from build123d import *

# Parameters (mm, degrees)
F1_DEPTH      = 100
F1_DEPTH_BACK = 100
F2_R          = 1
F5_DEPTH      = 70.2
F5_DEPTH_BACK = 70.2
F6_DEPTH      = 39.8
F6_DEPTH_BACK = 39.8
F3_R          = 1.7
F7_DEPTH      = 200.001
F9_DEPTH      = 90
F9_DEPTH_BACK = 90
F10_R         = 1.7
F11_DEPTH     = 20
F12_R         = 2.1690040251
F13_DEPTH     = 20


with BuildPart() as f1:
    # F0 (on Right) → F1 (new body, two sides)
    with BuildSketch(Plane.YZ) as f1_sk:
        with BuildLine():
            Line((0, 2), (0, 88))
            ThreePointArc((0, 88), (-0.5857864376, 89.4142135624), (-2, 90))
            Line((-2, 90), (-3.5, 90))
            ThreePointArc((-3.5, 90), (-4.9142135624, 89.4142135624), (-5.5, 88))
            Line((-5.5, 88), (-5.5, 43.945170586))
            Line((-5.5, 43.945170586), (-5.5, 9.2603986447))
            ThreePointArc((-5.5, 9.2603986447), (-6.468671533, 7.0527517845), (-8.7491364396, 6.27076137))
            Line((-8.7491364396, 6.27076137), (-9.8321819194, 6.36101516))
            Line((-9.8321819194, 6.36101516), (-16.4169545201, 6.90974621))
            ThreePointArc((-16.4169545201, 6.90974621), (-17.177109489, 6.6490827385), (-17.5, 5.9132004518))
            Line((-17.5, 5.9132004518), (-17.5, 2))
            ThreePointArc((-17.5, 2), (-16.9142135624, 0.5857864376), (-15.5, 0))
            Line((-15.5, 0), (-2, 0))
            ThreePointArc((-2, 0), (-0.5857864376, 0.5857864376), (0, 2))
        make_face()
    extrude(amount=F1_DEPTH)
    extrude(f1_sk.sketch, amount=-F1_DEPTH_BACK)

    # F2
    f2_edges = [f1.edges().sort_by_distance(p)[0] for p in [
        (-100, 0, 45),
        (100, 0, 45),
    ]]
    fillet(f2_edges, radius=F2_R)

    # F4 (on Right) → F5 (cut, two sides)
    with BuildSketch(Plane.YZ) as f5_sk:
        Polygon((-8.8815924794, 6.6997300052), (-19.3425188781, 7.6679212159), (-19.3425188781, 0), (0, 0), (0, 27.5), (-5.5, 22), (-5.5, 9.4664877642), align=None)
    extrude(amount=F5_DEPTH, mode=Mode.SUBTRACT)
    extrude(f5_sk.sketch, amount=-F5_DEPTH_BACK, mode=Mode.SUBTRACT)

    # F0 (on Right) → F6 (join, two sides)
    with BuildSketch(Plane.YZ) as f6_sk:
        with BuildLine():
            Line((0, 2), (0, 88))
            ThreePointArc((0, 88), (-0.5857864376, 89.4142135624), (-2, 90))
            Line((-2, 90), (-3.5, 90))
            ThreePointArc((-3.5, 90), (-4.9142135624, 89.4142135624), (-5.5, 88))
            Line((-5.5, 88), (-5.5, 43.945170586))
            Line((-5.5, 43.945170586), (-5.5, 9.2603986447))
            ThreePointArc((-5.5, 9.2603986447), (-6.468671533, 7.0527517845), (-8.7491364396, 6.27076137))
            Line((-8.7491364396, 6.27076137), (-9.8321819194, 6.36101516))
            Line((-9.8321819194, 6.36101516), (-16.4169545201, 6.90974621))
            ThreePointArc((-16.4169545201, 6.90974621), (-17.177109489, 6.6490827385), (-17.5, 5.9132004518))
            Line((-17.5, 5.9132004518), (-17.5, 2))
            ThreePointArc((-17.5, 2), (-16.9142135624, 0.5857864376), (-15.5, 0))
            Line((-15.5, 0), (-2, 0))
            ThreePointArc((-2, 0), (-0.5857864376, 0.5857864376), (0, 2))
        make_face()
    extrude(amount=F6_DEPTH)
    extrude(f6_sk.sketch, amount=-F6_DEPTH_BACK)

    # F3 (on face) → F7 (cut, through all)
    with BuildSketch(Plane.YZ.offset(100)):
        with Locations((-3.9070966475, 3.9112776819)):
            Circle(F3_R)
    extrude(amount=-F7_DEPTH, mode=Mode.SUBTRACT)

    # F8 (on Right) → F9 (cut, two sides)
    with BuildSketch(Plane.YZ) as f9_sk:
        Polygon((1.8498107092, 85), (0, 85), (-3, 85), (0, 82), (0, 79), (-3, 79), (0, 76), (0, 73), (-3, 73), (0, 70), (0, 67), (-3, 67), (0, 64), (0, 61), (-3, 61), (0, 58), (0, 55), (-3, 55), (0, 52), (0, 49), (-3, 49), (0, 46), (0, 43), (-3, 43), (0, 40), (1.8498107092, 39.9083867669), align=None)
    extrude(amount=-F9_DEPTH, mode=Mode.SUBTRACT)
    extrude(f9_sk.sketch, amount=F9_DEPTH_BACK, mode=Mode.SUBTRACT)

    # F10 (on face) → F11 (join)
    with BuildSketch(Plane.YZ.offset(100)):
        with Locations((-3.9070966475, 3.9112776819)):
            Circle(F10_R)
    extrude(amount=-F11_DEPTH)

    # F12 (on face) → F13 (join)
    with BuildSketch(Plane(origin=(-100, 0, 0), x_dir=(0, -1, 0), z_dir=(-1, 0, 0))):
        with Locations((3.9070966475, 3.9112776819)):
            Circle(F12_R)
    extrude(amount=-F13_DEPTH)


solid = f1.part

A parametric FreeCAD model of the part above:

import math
import FreeCAD as App
import Part
import Sketcher

V = App.Vector
Q = App.Units.Quantity


def edges_at(feature, points):
    """Names of the edges that pass closest to the given points."""
    edges = feature.Shape.Edges
    near = lambda p: min(range(len(edges)), key=lambda i: edges[i].distToShape(Part.Vertex(*p))[0])
    return sorted({f"Edge{near(p) + 1}" for p in points})

doc = App.newDocument("Part")
body = doc.addObject("PartDesign::Body", "Body")

# Sketch on YZ plane
sketch1 = doc.addObject("Sketcher::SketchObject", "Sketch")
body.addObject(sketch1)
sketch1.AttachmentSupport = (doc.YZ_Plane, [""])
sketch1.MapMode = "FlatFace"
sketch1.addGeometry([
    Part.LineSegment(V(0, 2, 0), V(0, 88, 0)),  # 0
    Part.ArcOfCircle(Part.Circle(V(-2, 88, 0), V(0, 0, 1), 2), math.radians(0), math.radians(90)),  # 1
    Part.LineSegment(V(-2, 90, 0), V(-3.5, 90, 0)),  # 2
    Part.ArcOfCircle(Part.Circle(V(-3.5, 88, 0), V(0, 0, 1), 2), math.radians(90), math.radians(180)),  # 3
    Part.LineSegment(V(-5.5, 88, 0), V(-5.5, 9.3, 0)),  # 4
    Part.ArcOfCircle(Part.Circle(V(-8.5, 9.3, 0), V(0, 0, 1), 3), math.radians(-95), math.radians(0)),  # 5
    Part.LineSegment(V(-8.7, 6.3, 0), V(-9.8, 6.4, 0)),  # 6
    Part.LineSegment(V(-9.8, 6.4, 0), V(-16.4, 6.9, 0)),  # 7
    Part.ArcOfCircle(Part.Circle(V(-16.5, 5.9, 0), V(0, 0, 1), 1), math.radians(85), math.radians(180)),  # 8
    Part.LineSegment(V(-17.5, 5.9, 0), V(-17.5, 2, 0)),  # 9
    Part.ArcOfCircle(Part.Circle(V(-15.5, 2, 0), V(0, 0, 1), 2), math.radians(180), math.radians(270)),  # 10
    Part.LineSegment(V(-15.5, 0, 0), V(-2, 0, 0)),  # 11
    Part.ArcOfCircle(Part.Circle(V(-2, 2, 0), V(0, 0, 1), 2), math.radians(-90), math.radians(0)),  # 12
], False)
sketch1.addConstraint([
    Sketcher.Constraint("Tangent", 0, 2, 1, 1),
    Sketcher.Constraint("Tangent", 1, 2, 2, 1),
    Sketcher.Constraint("Tangent", 2, 2, 3, 1),
    Sketcher.Constraint("Tangent", 3, 2, 4, 1),
    Sketcher.Constraint("Tangent", 4, 2, 5, 2),
    Sketcher.Constraint("Tangent", 5, 1, 6, 1),
    Sketcher.Constraint("Coincident", 6, 2, 7, 1),
    Sketcher.Constraint("Tangent", 7, 2, 8, 1),
    Sketcher.Constraint("Tangent", 8, 2, 9, 1),
    Sketcher.Constraint("Tangent", 9, 2, 10, 1),
    Sketcher.Constraint("Tangent", 10, 2, 11, 1),
    Sketcher.Constraint("Tangent", 11, 2, 12, 1),
    Sketcher.Constraint("Tangent", 12, 2, 0, 1),
    Sketcher.Constraint("Vertical", 0),
    Sketcher.Constraint("Horizontal", 2),
    Sketcher.Constraint("Vertical", 4),
    Sketcher.Constraint("Vertical", 9),
    Sketcher.Constraint("Horizontal", 11),
    Sketcher.Constraint("Equal", 1, 3),
    Sketcher.Constraint("Equal", 3, 10),
    Sketcher.Constraint("Equal", 10, 12),
    Sketcher.Constraint("PointOnObject", 0, 2, -2),
    Sketcher.Constraint("PointOnObject", 10, 2, -1),
    Sketcher.Constraint("Parallel", 6, 7),
    Sketcher.Constraint("Radius", 1, 2.0),
    Sketcher.Constraint("Radius", 5, 3.0),
    Sketcher.Constraint("Radius", 8, 1.0),
    Sketcher.Constraint("DistanceY", 0, 1, 0, 2, 86.0),
    Sketcher.Constraint("DistanceX", 2, 2, 2, 1, 1.5),
    Sketcher.Constraint("DistanceX", 11, 1, 11, 2, 13.5),
    Sketcher.Constraint("DistanceY", 4, 2, 4, 1, 78.739601),
    Sketcher.Constraint("DistanceY", 9, 2, 9, 1, 3.9132),
    Sketcher.Constraint("Distance", 6, 1.0868),
])
pad1 = doc.addObject("PartDesign::Pad", "Pad")
body.addObject(pad1)
pad1.Profile = sketch1
pad1.Type = "TwoLengths"
pad1.Length = 100
pad1.Length2 = 100
doc.recompute()

fillet = doc.addObject("PartDesign::Fillet", "Fillet")
body.addObject(fillet)
fillet.Base = (pad1, edges_at(pad1, [(-100, 0, 45), (100, 0, 45)]))
fillet.Radius = 1

# Sketch on YZ plane
sketch2 = doc.addObject("Sketcher::SketchObject", "Sketch001")
body.addObject(sketch2)
sketch2.AttachmentSupport = (doc.YZ_Plane, [""])
sketch2.MapMode = "FlatFace"
sketch2.addGeometry([
    Part.LineSegment(V(-8.9, 6.7, 0), V(-19.3, 7.7, 0)),  # 0
    Part.LineSegment(V(-19.3, 7.7, 0), V(-19.3, 0, 0)),  # 1
    Part.LineSegment(V(-19.3, 0, 0), V(0, 0, 0)),  # 2
    Part.LineSegment(V(0, 0, 0), V(0, 27.5, 0)),  # 3
    Part.LineSegment(V(0, 27.5, 0), V(-5.5, 22, 0)),  # 4
    Part.LineSegment(V(-5.5, 22, 0), V(-5.5, 9.5, 0)),  # 5
    Part.LineSegment(V(-5.5, 9.5, 0), V(-8.9, 6.7, 0)),  # 6
], False)
sketch2.addConstraint([
    Sketcher.Constraint("Coincident", 0, 2, 1, 1),
    Sketcher.Constraint("Coincident", 1, 2, 2, 1),
    Sketcher.Constraint("Coincident", 2, 2, 3, 1),
    Sketcher.Constraint("Coincident", 3, 2, 4, 1),
    Sketcher.Constraint("Coincident", 4, 2, 5, 1),
    Sketcher.Constraint("Coincident", 5, 2, 6, 1),
    Sketcher.Constraint("Coincident", 6, 2, 0, 1),
    Sketcher.Constraint("Vertical", 1),
    Sketcher.Constraint("Horizontal", 2),
    Sketcher.Constraint("Vertical", 3),
    Sketcher.Constraint("Vertical", 5),
    Sketcher.Constraint("Coincident", 2, 2, -1, 1),
    Sketcher.Constraint("Angle", 4, Q("-135 deg")),
    Sketcher.Constraint("DistanceY", 3, 1, 3, 2, 27.5),
    Sketcher.Constraint("DistanceY", -1, 1, 4, 2, 22.0),
    Sketcher.Constraint("DistanceX", 2, 1, 2, 2, 19.342519),
    Sketcher.Constraint("DistanceY", 1, 2, 1, 1, 7.667921),
    Sketcher.Constraint("DistanceY", 5, 2, 5, 1, 12.533512),
    Sketcher.Constraint("DistanceY", -1, 1, 6, 2, 6.69973),
    Sketcher.Constraint("Distance", 0, 10.505635),
])
pocket1 = doc.addObject("PartDesign::Pocket", "Pocket")
body.addObject(pocket1)
pocket1.Profile = sketch2
pocket1.Type = "TwoLengths"
pocket1.Length = 70.2
pocket1.Length2 = 70.2
pocket1.Reversed = True

# Sketch on YZ plane
sketch3 = doc.addObject("Sketcher::SketchObject", "Sketch002")
body.addObject(sketch3)
sketch3.AttachmentSupport = (doc.YZ_Plane, [""])
sketch3.MapMode = "FlatFace"
sketch3.addGeometry([
    Part.LineSegment(V(0, 2, 0), V(0, 88, 0)),  # 0
    Part.ArcOfCircle(Part.Circle(V(-2, 88, 0), V(0, 0, 1), 2), math.radians(0), math.radians(90)),  # 1
    Part.LineSegment(V(-2, 90, 0), V(-3.5, 90, 0)),  # 2
    Part.ArcOfCircle(Part.Circle(V(-3.5, 88, 0), V(0, 0, 1), 2), math.radians(90), math.radians(180)),  # 3
    Part.LineSegment(V(-5.5, 88, 0), V(-5.5, 9.3, 0)),  # 4
    Part.ArcOfCircle(Part.Circle(V(-8.5, 9.3, 0), V(0, 0, 1), 3), math.radians(-95), math.radians(0)),  # 5
    Part.LineSegment(V(-8.7, 6.3, 0), V(-9.8, 6.4, 0)),  # 6
    Part.LineSegment(V(-9.8, 6.4, 0), V(-16.4, 6.9, 0)),  # 7
    Part.ArcOfCircle(Part.Circle(V(-16.5, 5.9, 0), V(0, 0, 1), 1), math.radians(85), math.radians(180)),  # 8
    Part.LineSegment(V(-17.5, 5.9, 0), V(-17.5, 2, 0)),  # 9
    Part.ArcOfCircle(Part.Circle(V(-15.5, 2, 0), V(0, 0, 1), 2), math.radians(180), math.radians(270)),  # 10
    Part.LineSegment(V(-15.5, 0, 0), V(-2, 0, 0)),  # 11
    Part.ArcOfCircle(Part.Circle(V(-2, 2, 0), V(0, 0, 1), 2), math.radians(-90), math.radians(0)),  # 12
], False)
sketch3.addConstraint([
    Sketcher.Constraint("Tangent", 0, 2, 1, 1),
    Sketcher.Constraint("Tangent", 1, 2, 2, 1),
    Sketcher.Constraint("Tangent", 2, 2, 3, 1),
    Sketcher.Constraint("Tangent", 3, 2, 4, 1),
    Sketcher.Constraint("Tangent", 4, 2, 5, 2),
    Sketcher.Constraint("Tangent", 5, 1, 6, 1),
    Sketcher.Constraint("Coincident", 6, 2, 7, 1),
    Sketcher.Constraint("Tangent", 7, 2, 8, 1),
    Sketcher.Constraint("Tangent", 8, 2, 9, 1),
    Sketcher.Constraint("Tangent", 9, 2, 10, 1),
    Sketcher.Constraint("Tangent", 10, 2, 11, 1),
    Sketcher.Constraint("Tangent", 11, 2, 12, 1),
    Sketcher.Constraint("Tangent", 12, 2, 0, 1),
    Sketcher.Constraint("Vertical", 0),
    Sketcher.Constraint("Horizontal", 2),
    Sketcher.Constraint("Vertical", 4),
    Sketcher.Constraint("Vertical", 9),
    Sketcher.Constraint("Horizontal", 11),
    Sketcher.Constraint("Equal", 1, 3),
    Sketcher.Constraint("Equal", 3, 10),
    Sketcher.Constraint("Equal", 10, 12),
    Sketcher.Constraint("PointOnObject", 0, 2, -2),
    Sketcher.Constraint("PointOnObject", 10, 2, -1),
    Sketcher.Constraint("Parallel", 6, 7),
    Sketcher.Constraint("Radius", 1, 2.0),
    Sketcher.Constraint("Radius", 5, 3.0),
    Sketcher.Constraint("Radius", 8, 1.0),
    Sketcher.Constraint("DistanceY", 0, 1, 0, 2, 86.0),
    Sketcher.Constraint("DistanceX", 2, 2, 2, 1, 1.5),
    Sketcher.Constraint("DistanceX", 11, 1, 11, 2, 13.5),
    Sketcher.Constraint("DistanceY", 4, 2, 4, 1, 78.739601),
    Sketcher.Constraint("DistanceY", 9, 2, 9, 1, 3.9132),
    Sketcher.Constraint("Distance", 6, 1.0868),
])
pad2 = doc.addObject("PartDesign::Pad", "Pad001")
body.addObject(pad2)
pad2.Profile = sketch3
pad2.Type = "TwoLengths"
pad2.Length = 39.8
pad2.Length2 = 39.8

# Sketch on YZ plane
sketch4 = doc.addObject("Sketcher::SketchObject", "Sketch003")
body.addObject(sketch4)
sketch4.AttachmentSupport = (doc.YZ_Plane, [""])
sketch4.MapMode = "FlatFace"
sketch4.AttachmentOffset = App.Placement(V(0, 0, 100), App.Rotation())
sketch4.addGeometry(Part.Circle(V(-3.9, 3.9, 0), V(0, 0, 1), 1.7), False)
sketch4.addConstraint([
    Sketcher.Constraint("Diameter", 0, 3.4),
    Sketcher.Constraint("DistanceX", 0, 3, -1, 1, 3.907097),
    Sketcher.Constraint("DistanceY", -1, 1, 0, 3, 3.911278),
])
pocket2 = doc.addObject("PartDesign::Pocket", "Pocket001")
body.addObject(pocket2)
pocket2.Profile = sketch4
pocket2.Type = "ThroughAll"

# Sketch on YZ plane
sketch5 = doc.addObject("Sketcher::SketchObject", "Sketch004")
body.addObject(sketch5)
sketch5.AttachmentSupport = (doc.YZ_Plane, [""])
sketch5.MapMode = "FlatFace"
sketch5.addGeometry([
    Part.LineSegment(V(1.8, 85, 0), V(-3, 85, 0)),  # 0
    Part.LineSegment(V(-3, 85, 0), V(0, 82, 0)),  # 1
    Part.LineSegment(V(0, 82, 0), V(0, 79, 0)),  # 2
    Part.LineSegment(V(0, 79, 0), V(-3, 79, 0)),  # 3
    Part.LineSegment(V(-3, 79, 0), V(0, 76, 0)),  # 4
    Part.LineSegment(V(0, 76, 0), V(0, 73, 0)),  # 5
    Part.LineSegment(V(0, 73, 0), V(-3, 73, 0)),  # 6
    Part.LineSegment(V(-3, 73, 0), V(0, 70, 0)),  # 7
    Part.LineSegment(V(0, 70, 0), V(0, 67, 0)),  # 8
    Part.LineSegment(V(0, 67, 0), V(-3, 67, 0)),  # 9
    Part.LineSegment(V(-3, 67, 0), V(0, 64, 0)),  # 10
    Part.LineSegment(V(0, 64, 0), V(0, 61, 0)),  # 11
    Part.LineSegment(V(0, 61, 0), V(-3, 61, 0)),  # 12
    Part.LineSegment(V(-3, 61, 0), V(0, 58, 0)),  # 13
    Part.LineSegment(V(0, 58, 0), V(0, 55, 0)),  # 14
    Part.LineSegment(V(0, 55, 0), V(-3, 55, 0)),  # 15
    Part.LineSegment(V(-3, 55, 0), V(0, 52, 0)),  # 16
    Part.LineSegment(V(0, 52, 0), V(0, 49, 0)),  # 17
    Part.LineSegment(V(0, 49, 0), V(-3, 49, 0)),  # 18
    Part.LineSegment(V(-3, 49, 0), V(0, 46, 0)),  # 19
    Part.LineSegment(V(0, 46, 0), V(0, 43, 0)),  # 20
    Part.LineSegment(V(0, 43, 0), V(-3, 43, 0)),  # 21
    Part.LineSegment(V(-3, 43, 0), V(0, 40, 0)),  # 22
    Part.LineSegment(V(0, 40, 0), V(1.8, 39.9, 0)),  # 23
    Part.LineSegment(V(1.8, 39.9, 0), V(1.8, 85, 0)),  # 24
], False)
sketch5.addConstraint([
    Sketcher.Constraint("Coincident", 0, 2, 1, 1),
    Sketcher.Constraint("Coincident", 1, 2, 2, 1),
    Sketcher.Constraint("Coincident", 2, 2, 3, 1),
    Sketcher.Constraint("Coincident", 3, 2, 4, 1),
    Sketcher.Constraint("Coincident", 4, 2, 5, 1),
    Sketcher.Constraint("Coincident", 5, 2, 6, 1),
    Sketcher.Constraint("Coincident", 6, 2, 7, 1),
    Sketcher.Constraint("Coincident", 7, 2, 8, 1),
    Sketcher.Constraint("Coincident", 8, 2, 9, 1),
    Sketcher.Constraint("Coincident", 9, 2, 10, 1),
    Sketcher.Constraint("Coincident", 10, 2, 11, 1),
    Sketcher.Constraint("Coincident", 11, 2, 12, 1),
    Sketcher.Constraint("Coincident", 12, 2, 13, 1),
    Sketcher.Constraint("Coincident", 13, 2, 14, 1),
    Sketcher.Constraint("Coincident", 14, 2, 15, 1),
    Sketcher.Constraint("Coincident", 15, 2, 16, 1),
    Sketcher.Constraint("Coincident", 16, 2, 17, 1),
    Sketcher.Constraint("Coincident", 17, 2, 18, 1),
    Sketcher.Constraint("Coincident", 18, 2, 19, 1),
    Sketcher.Constraint("Coincident", 19, 2, 20, 1),
    Sketcher.Constraint("Coincident", 20, 2, 21, 1),
    Sketcher.Constraint("Coincident", 21, 2, 22, 1),
    Sketcher.Constraint("Coincident", 22, 2, 23, 1),
    Sketcher.Constraint("Coincident", 23, 2, 24, 1),
    Sketcher.Constraint("Coincident", 24, 2, 0, 1),
    Sketcher.Constraint("Horizontal", 0),
    Sketcher.Constraint("Vertical", 2),
    Sketcher.Constraint("Horizontal", 3),
    Sketcher.Constraint("Vertical", 5),
    Sketcher.Constraint("Horizontal", 6),
    Sketcher.Constraint("Vertical", 8),
    Sketcher.Constraint("Horizontal", 9),
    Sketcher.Constraint("Vertical", 11),
    Sketcher.Constraint("Horizontal", 12),
    Sketcher.Constraint("Vertical", 14),
    Sketcher.Constraint("Horizontal", 15),
    Sketcher.Constraint("Vertical", 17),
    Sketcher.Constraint("Horizontal", 18),
    Sketcher.Constraint("Vertical", 20),
    Sketcher.Constraint("Horizontal", 21),
    Sketcher.Constraint("Vertical", 24),
    Sketcher.Constraint("PointOnObject", 1, 2, -2),
    Sketcher.Constraint("PointOnObject", 4, 2, -2),
    Sketcher.Constraint("PointOnObject", 7, 2, -2),
    Sketcher.Constraint("PointOnObject", 10, 2, -2),
    Sketcher.Constraint("PointOnObject", 13, 2, -2),
    Sketcher.Constraint("PointOnObject", 16, 2, -2),
    Sketcher.Constraint("PointOnObject", 19, 2, -2),
    Sketcher.Constraint("PointOnObject", 22, 2, -2),
    Sketcher.Constraint("Parallel", 1, 4),
    Sketcher.Constraint("Parallel", 4, 7),
    Sketcher.Constraint("Parallel", 7, 10),
    Sketcher.Constraint("Parallel", 10, 13),
    Sketcher.Constraint("Parallel", 13, 16),
    Sketcher.Constraint("Parallel", 16, 19),
    Sketcher.Constraint("Parallel", 19, 22),
    Sketcher.Constraint("Vertical", 0, 2, 3, 2),
    Sketcher.Constraint("Vertical", 3, 2, 6, 2),
    Sketcher.Constraint("Vertical", 6, 2, 9, 2),
    Sketcher.Constraint("Vertical", 9, 2, 12, 2),
    Sketcher.Constraint("Vertical", 12, 2, 15, 2),
    Sketcher.Constraint("Vertical", 15, 2, 18, 2),
    Sketcher.Constraint("Vertical", 18, 2, 21, 2),
    Sketcher.Constraint("Equal", 21, 2),
    Sketcher.Constraint("Equal", 2, 5),
    Sketcher.Constraint("Equal", 5, 8),
    Sketcher.Constraint("Equal", 8, 11),
    Sketcher.Constraint("Equal", 11, 14),
    Sketcher.Constraint("Equal", 14, 17),
    Sketcher.Constraint("Equal", 17, 20),
    Sketcher.Constraint("DistanceX", 3, 2, 3, 1, 3.0),
    Sketcher.Constraint("Angle", 1, Q("-45 deg")),
    Sketcher.Constraint("DistanceY", -1, 1, 0, 2, 85.0),
    Sketcher.Constraint("DistanceX", 0, 2, 0, 1, 4.849811),
    Sketcher.Constraint("DistanceY", 24, 1, 24, 2, 45.091613),
])
pocket3 = doc.addObject("PartDesign::Pocket", "Pocket002")
body.addObject(pocket3)
pocket3.Profile = sketch5
pocket3.Type = "TwoLengths"
pocket3.Length = 90
pocket3.Length2 = 90

# Sketch on YZ plane
sketch6 = doc.addObject("Sketcher::SketchObject", "Sketch005")
body.addObject(sketch6)
sketch6.AttachmentSupport = (doc.YZ_Plane, [""])
sketch6.MapMode = "FlatFace"
sketch6.AttachmentOffset = App.Placement(V(0, 0, 100), App.Rotation())
sketch6.addGeometry(Part.Circle(V(-3.9, 3.9, 0), V(0, 0, 1), 1.7), False)
sketch6.addConstraint([
    Sketcher.Constraint("Diameter", 0, 3.4),
    Sketcher.Constraint("DistanceX", 0, 3, -1, 1, 3.907097),
    Sketcher.Constraint("DistanceY", -1, 1, 0, 3, 3.911278),
])
pad3 = doc.addObject("PartDesign::Pad", "Pad002")
body.addObject(pad3)
pad3.Profile = sketch6
pad3.Length = 20
pad3.Reversed = True

# Sketch on YZ plane
sketch7 = doc.addObject("Sketcher::SketchObject", "Sketch006")
body.addObject(sketch7)
sketch7.AttachmentSupport = (doc.YZ_Plane, [""])
sketch7.MapMode = "FlatFace"
sketch7.AttachmentOffset = App.Placement(V(0, 0, -100), App.Rotation())
sketch7.addGeometry(Part.Circle(V(-3.9, 3.9, 0), V(0, 0, 1), 2.2), False)
sketch7.addConstraint([
    Sketcher.Constraint("Diameter", 0, 4.338008),
    Sketcher.Constraint("DistanceX", 0, 3, -1, 1, 3.907097),
    Sketcher.Constraint("DistanceY", -1, 1, 0, 3, 3.911278),
])
pad4 = doc.addObject("PartDesign::Pad", "Pad003")
body.addObject(pad4)
pad4.Profile = sketch7
pad4.Length = 20

doc.recompute()
